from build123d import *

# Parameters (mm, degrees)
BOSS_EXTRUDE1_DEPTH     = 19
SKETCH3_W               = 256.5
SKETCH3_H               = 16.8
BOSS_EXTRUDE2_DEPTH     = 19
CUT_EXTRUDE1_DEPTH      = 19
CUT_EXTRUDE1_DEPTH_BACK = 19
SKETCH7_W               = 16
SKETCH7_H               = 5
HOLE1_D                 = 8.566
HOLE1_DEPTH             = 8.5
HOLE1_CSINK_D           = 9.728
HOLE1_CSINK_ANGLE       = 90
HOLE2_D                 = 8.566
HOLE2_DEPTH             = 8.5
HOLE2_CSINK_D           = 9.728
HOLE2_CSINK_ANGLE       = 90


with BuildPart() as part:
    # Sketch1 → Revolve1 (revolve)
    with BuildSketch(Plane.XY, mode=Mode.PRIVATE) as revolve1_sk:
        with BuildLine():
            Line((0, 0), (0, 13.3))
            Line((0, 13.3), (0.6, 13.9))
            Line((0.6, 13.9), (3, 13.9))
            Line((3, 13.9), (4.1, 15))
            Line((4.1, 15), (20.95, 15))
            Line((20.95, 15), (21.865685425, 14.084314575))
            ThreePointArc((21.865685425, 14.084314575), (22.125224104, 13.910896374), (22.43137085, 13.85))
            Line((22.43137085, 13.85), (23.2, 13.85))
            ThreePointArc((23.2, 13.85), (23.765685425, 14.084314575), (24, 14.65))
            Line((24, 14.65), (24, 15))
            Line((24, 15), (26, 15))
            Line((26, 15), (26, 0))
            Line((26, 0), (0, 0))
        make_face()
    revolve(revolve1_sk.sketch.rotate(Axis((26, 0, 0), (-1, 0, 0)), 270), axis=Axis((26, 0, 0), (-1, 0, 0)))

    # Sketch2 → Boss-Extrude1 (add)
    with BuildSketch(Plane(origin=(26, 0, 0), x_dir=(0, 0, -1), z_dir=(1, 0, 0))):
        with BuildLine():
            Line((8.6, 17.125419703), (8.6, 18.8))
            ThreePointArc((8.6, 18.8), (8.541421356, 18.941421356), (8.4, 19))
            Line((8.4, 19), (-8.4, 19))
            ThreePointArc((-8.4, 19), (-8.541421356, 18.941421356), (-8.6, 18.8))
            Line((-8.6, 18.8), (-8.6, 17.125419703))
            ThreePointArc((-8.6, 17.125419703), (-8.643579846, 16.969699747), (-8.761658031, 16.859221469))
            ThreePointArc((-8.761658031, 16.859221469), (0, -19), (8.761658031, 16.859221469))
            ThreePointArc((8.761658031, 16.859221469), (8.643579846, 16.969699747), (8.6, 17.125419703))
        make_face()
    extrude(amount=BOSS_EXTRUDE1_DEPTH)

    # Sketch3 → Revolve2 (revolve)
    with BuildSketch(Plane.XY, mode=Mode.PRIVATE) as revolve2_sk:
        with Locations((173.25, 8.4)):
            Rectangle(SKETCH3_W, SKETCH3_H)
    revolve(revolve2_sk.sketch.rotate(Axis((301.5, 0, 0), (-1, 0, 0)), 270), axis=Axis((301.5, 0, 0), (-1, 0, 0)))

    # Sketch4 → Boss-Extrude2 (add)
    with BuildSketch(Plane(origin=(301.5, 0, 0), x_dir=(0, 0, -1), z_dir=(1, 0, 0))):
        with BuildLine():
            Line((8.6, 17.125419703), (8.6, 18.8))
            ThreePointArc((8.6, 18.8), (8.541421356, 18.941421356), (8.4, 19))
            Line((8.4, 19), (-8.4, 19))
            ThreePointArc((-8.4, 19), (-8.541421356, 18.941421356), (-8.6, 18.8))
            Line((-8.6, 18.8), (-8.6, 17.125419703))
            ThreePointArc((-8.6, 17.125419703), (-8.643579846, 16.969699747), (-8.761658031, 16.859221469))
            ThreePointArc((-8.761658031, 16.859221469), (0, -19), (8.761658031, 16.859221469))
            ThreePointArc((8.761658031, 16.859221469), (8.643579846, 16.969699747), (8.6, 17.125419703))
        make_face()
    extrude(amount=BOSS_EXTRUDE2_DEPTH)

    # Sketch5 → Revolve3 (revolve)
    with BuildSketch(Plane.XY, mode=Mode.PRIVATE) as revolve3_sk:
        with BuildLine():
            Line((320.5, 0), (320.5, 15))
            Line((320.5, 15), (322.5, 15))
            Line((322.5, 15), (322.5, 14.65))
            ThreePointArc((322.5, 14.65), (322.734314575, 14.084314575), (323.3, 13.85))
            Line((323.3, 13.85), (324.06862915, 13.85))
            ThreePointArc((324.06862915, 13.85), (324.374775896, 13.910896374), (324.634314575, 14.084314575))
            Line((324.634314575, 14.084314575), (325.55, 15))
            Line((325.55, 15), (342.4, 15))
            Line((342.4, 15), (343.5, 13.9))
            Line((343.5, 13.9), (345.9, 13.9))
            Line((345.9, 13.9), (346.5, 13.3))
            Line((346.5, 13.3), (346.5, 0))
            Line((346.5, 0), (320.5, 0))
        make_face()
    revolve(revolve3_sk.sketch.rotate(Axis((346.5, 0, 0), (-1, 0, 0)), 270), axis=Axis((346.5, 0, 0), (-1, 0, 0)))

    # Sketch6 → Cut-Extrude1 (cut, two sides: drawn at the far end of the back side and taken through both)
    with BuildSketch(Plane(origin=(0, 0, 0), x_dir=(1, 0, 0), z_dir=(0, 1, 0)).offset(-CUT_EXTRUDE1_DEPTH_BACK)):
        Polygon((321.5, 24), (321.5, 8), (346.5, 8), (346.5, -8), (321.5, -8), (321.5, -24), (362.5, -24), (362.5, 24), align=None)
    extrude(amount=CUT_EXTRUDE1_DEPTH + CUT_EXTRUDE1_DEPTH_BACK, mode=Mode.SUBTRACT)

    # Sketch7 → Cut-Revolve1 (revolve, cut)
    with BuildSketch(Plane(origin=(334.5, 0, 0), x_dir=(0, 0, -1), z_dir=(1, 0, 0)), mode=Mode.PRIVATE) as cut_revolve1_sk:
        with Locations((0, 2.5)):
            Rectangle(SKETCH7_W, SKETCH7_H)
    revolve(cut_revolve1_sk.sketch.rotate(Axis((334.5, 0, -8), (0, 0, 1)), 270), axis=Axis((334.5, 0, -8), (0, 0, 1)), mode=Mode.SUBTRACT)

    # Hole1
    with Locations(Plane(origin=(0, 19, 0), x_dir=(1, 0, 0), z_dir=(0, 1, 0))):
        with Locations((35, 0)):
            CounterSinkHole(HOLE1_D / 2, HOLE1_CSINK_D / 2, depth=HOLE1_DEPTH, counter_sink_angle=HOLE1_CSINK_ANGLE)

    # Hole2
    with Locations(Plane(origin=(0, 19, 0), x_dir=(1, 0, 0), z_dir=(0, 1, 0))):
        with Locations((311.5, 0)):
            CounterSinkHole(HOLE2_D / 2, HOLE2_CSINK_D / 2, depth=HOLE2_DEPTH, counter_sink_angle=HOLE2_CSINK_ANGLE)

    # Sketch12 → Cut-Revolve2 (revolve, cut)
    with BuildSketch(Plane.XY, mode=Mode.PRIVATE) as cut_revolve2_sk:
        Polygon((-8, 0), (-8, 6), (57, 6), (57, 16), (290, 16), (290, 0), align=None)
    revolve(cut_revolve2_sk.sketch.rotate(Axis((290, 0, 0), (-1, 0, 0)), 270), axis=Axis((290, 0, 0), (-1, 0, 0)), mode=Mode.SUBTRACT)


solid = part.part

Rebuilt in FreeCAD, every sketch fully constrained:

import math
import FreeCAD as App
import Part
import Sketcher
from FreeCAD import Vector
Q = App.Units.Quantity

doc = App.newDocument("Part")
body = doc.addObject("PartDesign::Body", "Body")

# Sketch on XY plane
sketch1 = body.newObject("Sketcher::SketchObject", "Sketch")
sketch1.AttachmentSupport = (doc.getObject("XY_Plane"), [""])
sketch1.MapMode = "FlatFace"
sketch1.addGeometry(Part.LineSegment(Vector(0, 13.3, 0), Vector(0, 0, 0)), False)
sketch1.addGeometry(Part.LineSegment(Vector(0, 0, 0), Vector(26, 0, 0)), False)
sketch1.addGeometry(Part.LineSegment(Vector(26, 0, 0), Vector(26, 15, 0)), False)
sketch1.addGeometry(Part.LineSegment(Vector(26, 15, 0), Vector(24, 15, 0)), False)
sketch1.addGeometry(Part.LineSegment(Vector(24, 15, 0), Vector(24, 14.65, 0)), False)
sketch1.addGeometry(Part.ArcOfCircle(Part.Circle(Vector(23.2, 14.65, 0), Vector(0, 0, 1), 0.8), math.radians(-90), math.radians(0)), False)
sketch1.addGeometry(Part.LineSegment(Vector(23.2, 13.85, 0), Vector(22.43, 13.85, 0)), False)
sketch1.addGeometry(Part.ArcOfCircle(Part.Circle(Vector(22.43, 14.65, 0), Vector(0, 0, 1), 0.8), math.radians(-135), math.radians(-90)), False)
sketch1.addGeometry(Part.LineSegment(Vector(21.87, 14.08, 0), Vector(20.95, 15, 0)), False)
sketch1.addGeometry(Part.LineSegment(Vector(20.95, 15, 0), Vector(4.1, 15, 0)), False)
sketch1.addGeometry(Part.LineSegment(Vector(4.1, 15, 0), Vector(3, 13.9, 0)), False)
sketch1.addGeometry(Part.LineSegment(Vector(3, 13.9, 0), Vector(0.6, 13.9, 0)), False)
sketch1.addGeometry(Part.LineSegment(Vector(0.6, 13.9, 0), Vector(0, 13.3, 0)), False)
sketch1.addConstraint(Sketcher.Constraint("Coincident", 0, 2, 1, 1))
sketch1.addConstraint(Sketcher.Constraint("Coincident", 1, 2, 2, 1))
sketch1.addConstraint(Sketcher.Constraint("Coincident", 2, 2, 3, 1))
sketch1.addConstraint(Sketcher.Constraint("Coincident", 3, 2, 4, 1))
sketch1.addConstraint(Sketcher.Constraint("Tangent", 4, 2, 5, 2))
sketch1.addConstraint(Sketcher.Constraint("Tangent", 5, 1, 6, 1))
sketch1.addConstraint(Sketcher.Constraint("Tangent", 6, 2, 7, 2))
sketch1.addConstraint(Sketcher.Constraint("Tangent", 7, 1, 8, 1))
sketch1.addConstraint(Sketcher.Constraint("Coincident", 8, 2, 9, 1))
sketch1.addConstraint(Sketcher.Constraint("Coincident", 9, 2, 10, 1))
sketch1.addConstraint(Sketcher.Constraint("Coincident", 10, 2, 11, 1))
sketch1.addConstraint(Sketcher.Constraint("Coincident", 11, 2, 12, 1))
sketch1.addConstraint(Sketcher.Constraint("Coincident", 12, 2, 0, 1))
sketch1.addConstraint(Sketcher.Constraint("Vertical", 0))
sketch1.addConstraint(Sketcher.Constraint("Horizontal", 1))
sketch1.addConstraint(Sketcher.Constraint("Vertical", 2))
sketch1.addConstraint(Sketcher.Constraint("Horizontal", 3))
sketch1.addConstraint(Sketcher.Constraint("Vertical", 4))
sketch1.addConstraint(Sketcher.Constraint("Horizontal", 6))
sketch1.addConstraint(Sketcher.Constraint("Horizontal", 9))
sketch1.addConstraint(Sketcher.Constraint("Horizontal", 11))
sketch1.addConstraint(Sketcher.Constraint("Coincident", 0, 2, -1, 1))
sketch1.addConstraint(Sketcher.Constraint("Equal", 5, 7))
sketch1.addConstraint(Sketcher.Constraint("Perpendicular", 8, 10))
sketch1.addConstraint(Sketcher.Constraint("Parallel", 10, 12))
sketch1.addConstraint(Sketcher.Constraint("Horizontal", 3, 2, 8, 2))
sketch1.addConstraint(Sketcher.Constraint("Radius", 5, 0.8))
sketch1.addConstraint(Sketcher.Constraint("DistanceX", 1, 1, 1, 2, 26.0))
sketch1.addConstraint(Sketcher.Constraint("DistanceX", 3, 2, 3, 1, 2.0))
sketch1.addConstraint(Sketcher.Constraint("DistanceY", 2, 1, 2, 2, 15.0))
sketch1.addConstraint(Sketcher.Constraint("Angle", 8, Q("135 deg")))
sketch1.addConstraint(Sketcher.Constraint("DistanceX", 11, 2, 11, 1, 2.4))
sketch1.addConstraint(Sketcher.Constraint("DistanceY", 0, 2, 0, 1, 13.3))
sketch1.addConstraint(Sketcher.Constraint("DistanceX", -1, 1, 10, 2, 3.0))
sketch1.addConstraint(Sketcher.Constraint("DistanceX", 9, 2, 9, 1, 16.85))
sketch1.addConstraint(Sketcher.Constraint("DistanceY", 4, 2, 4, 1, 0.35))
revolution = body.newObject("PartDesign::Revolution", "Revolution")
revolution.Profile = sketch1
revolution.ReferenceAxis = (sketch1, ["H_Axis"])
revolution.Angle = 360

# Sketch on YZ plane
sketch2 = body.newObject("Sketcher::SketchObject", "Sketch001")
sketch2.AttachmentSupport = (doc.getObject("YZ_Plane"), [""])
sketch2.MapMode = "FlatFace"
sketch2.AttachmentOffset = App.Placement(Vector(0, 0, 26), App.Rotation())
sketch2.addGeometry(Part.LineSegment(Vector(17.13, -8.6, 0), Vector(18.8, -8.6, 0)), False)
sketch2.addGeometry(Part.ArcOfCircle(Part.Circle(Vector(18.8, -8.4, 0), Vector(0, 0, 1), 0.2), math.radians(-90), math.radians(0)), False)
sketch2.addGeometry(Part.LineSegment(Vector(19, -8.4, 0), Vector(19, 8.4, 0)), False)
sketch2.addGeometry(Part.ArcOfCircle(Part.Circle(Vector(18.8, 8.4, 0), Vector(0, 0, 1), 0.2), math.radians(0), math.radians(90)), False)
sketch2.addGeometry(Part.LineSegment(Vector(18.8, 8.6, 0), Vector(17.13, 8.6, 0)), False)
sketch2.addGeometry(Part.ArcOfCircle(Part.Circle(Vector(17.13, 8.9, 0), Vector(0, 0, 1), 0.3), math.radians(-153), math.radians(-90)), False)
sketch2.addGeometry(Part.ArcOfCircle(Part.Circle(Vector(0, 0, 0), Vector(0, 0, 1), 19), math.radians(27), math.radians(333)), False)
sketch2.addGeometry(Part.ArcOfCircle(Part.Circle(Vector(17.13, -8.9, 0), Vector(0, 0, 1), 0.3), math.radians(90), math.radians(153)), False)
sketch2.addConstraint(Sketcher.Constraint("Tangent", 0, 2, 1, 1))
sketch2.addConstraint(Sketcher.Constraint("Tangent", 1, 2, 2, 1))
sketch2.addConstraint(Sketcher.Constraint("Tangent", 2, 2, 3, 1))
sketch2.addConstraint(Sketcher.Constraint("Tangent", 3, 2, 4, 1))
sketch2.addConstraint(Sketcher.Constraint("Tangent", 4, 2, 5, 2))
sketch2.addConstraint(Sketcher.Constraint("Tangent", 5, 1, 6, 1))
sketch2.addConstraint(Sketcher.Constraint("Tangent", 6, 2, 7, 2))
sketch2.addConstraint(Sketcher.Constraint("Tangent", 7, 1, 0, 1))
sketch2.addConstraint(Sketcher.Constraint("Horizontal", 0))
sketch2.addConstraint(Sketcher.Constraint("Vertical", 2))
sketch2.addConstraint(Sketcher.Constraint("Horizontal", 4))
sketch2.addConstraint(Sketcher.Constraint("Coincident", 6, 3, -1, 1))
sketch2.addConstraint(Sketcher.Constraint("Equal", 1, 3))
sketch2.addConstraint(Sketcher.Constraint("Equal", 5, 7))
sketch2.addConstraint(Sketcher.Constraint("Vertical", 5, 3, 7, 3))
sketch2.addConstraint(Sketcher.Constraint("Radius", 6, 19.0))
sketch2.addConstraint(Sketcher.Constraint("Radius", 1, 0.2))
sketch2.addConstraint(Sketcher.Constraint("Radius", 5, 0.3))
sketch2.addConstraint(Sketcher.Constraint("DistanceY", 2, 1, 2, 2, 16.8))
sketch2.addConstraint(Sketcher.Constraint("DistanceX", -1, 1, 1, 2, 19.0))
pad1 = body.newObject("PartDesign::Pad", "Pad")
pad1.Profile = sketch2
pad1.Length = 19

# Sketch on XY plane
sketch3 = body.newObject("Sketcher::SketchObject", "Sketch002")
sketch3.AttachmentSupport = (doc.getObject("XY_Plane"), [""])
sketch3.MapMode = "FlatFace"
sketch3.addGeometry(Part.LineSegment(Vector(45, 17, 0), Vector(45, 0, 0)), False)
sketch3.addGeometry(Part.LineSegment(Vector(45, 0, 0), Vector(302, 0, 0)), False)
sketch3.addGeometry(Part.LineSegment(Vector(302, 0, 0), Vector(302, 17, 0)), False)
sketch3.addGeometry(Part.LineSegment(Vector(302, 17, 0), Vector(45, 17, 0)), False)
sketch3.addConstraint(Sketcher.Constraint("Coincident", 0, 2, 1, 1))
sketch3.addConstraint(Sketcher.Constraint("Coincident", 1, 2, 2, 1))
sketch3.addConstraint(Sketcher.Constraint("Coincident", 2, 2, 3, 1))
sketch3.addConstraint(Sketcher.Constraint("Coincident", 3, 2, 0, 1))
sketch3.addConstraint(Sketcher.Constraint("Vertical", 0))
sketch3.addConstraint(Sketcher.Constraint("Horizontal", 1))
sketch3.addConstraint(Sketcher.Constraint("Vertical", 2))
sketch3.addConstraint(Sketcher.Constraint("Horizontal", 3))
sketch3.addConstraint(Sketcher.Constraint("PointOnObject", 0, 2, -1))
sketch3.addConstraint(Sketcher.Constraint("DistanceX", 1, 1, 1, 2, 256.5))
sketch3.addConstraint(Sketcher.Constraint("DistanceY", 0, 2, 0, 1, 16.8))
sketch3.addConstraint(Sketcher.Constraint("DistanceX", -1, 1, 0, 2, 45.0))
revolution2 = body.newObject("PartDesign::Revolution", "Revolution001")
revolution2.Profile = sketch3
revolution2.ReferenceAxis = (sketch3, ["H_Axis"])
revolution2.Angle = 360

# Sketch on YZ plane
sketch4 = body.newObject("Sketcher::SketchObject", "Sketch003")
sketch4.AttachmentSupport = (doc.getObject("YZ_Plane"), [""])
sketch4.MapMode = "FlatFace"
sketch4.AttachmentOffset = App.Placement(Vector(0, 0, 301.5), App.Rotation())
sketch4.addGeometry(Part.LineSegment(Vector(17.13, -8.6, 0), Vector(18.8, -8.6, 0)), False)
sketch4.addGeometry(Part.ArcOfCircle(Part.Circle(Vector(18.8, -8.4, 0), Vector(0, 0, 1), 0.2), math.radians(-90), math.radians(0)), False)
sketch4.addGeometry(Part.LineSegment(Vector(19, -8.4, 0), Vector(19, 8.4, 0)), False)
sketch4.addGeometry(Part.ArcOfCircle(Part.Circle(Vector(18.8, 8.4, 0), Vector(0, 0, 1), 0.2), math.radians(0), math.radians(90)), False)
sketch4.addGeometry(Part.LineSegment(Vector(18.8, 8.6, 0), Vector(17.13, 8.6, 0)), False)
sketch4.addGeometry(Part.ArcOfCircle(Part.Circle(Vector(17.13, 8.9, 0), Vector(0, 0, 1), 0.3), math.radians(-153), math.radians(-90)), False)
sketch4.addGeometry(Part.ArcOfCircle(Part.Circle(Vector(0, 0, 0), Vector(0, 0, 1), 19), math.radians(27), math.radians(333)), False)
sketch4.addGeometry(Part.ArcOfCircle(Part.Circle(Vector(17.13, -8.9, 0), Vector(0, 0, 1), 0.3), math.radians(90), math.radians(153)), False)
sketch4.addConstraint(Sketcher.Constraint("Tangent", 0, 2, 1, 1))
sketch4.addConstraint(Sketcher.Constraint("Tangent", 1, 2, 2, 1))
sketch4.addConstraint(Sketcher.Constraint("Tangent", 2, 2, 3, 1))
sketch4.addConstraint(Sketcher.Constraint("Tangent", 3, 2, 4, 1))
sketch4.addConstraint(Sketcher.Constraint("Tangent", 4, 2, 5, 2))
sketch4.addConstraint(Sketcher.Constraint("Tangent", 5, 1, 6, 1))
sketch4.addConstraint(Sketcher.Constraint("Tangent", 6, 2, 7, 2))
sketch4.addConstraint(Sketcher.Constraint("Tangent", 7, 1, 0, 1))
sketch4.addConstraint(Sketcher.Constraint("Horizontal", 0))
sketch4.addConstraint(Sketcher.Constraint("Vertical", 2))
sketch4.addConstraint(Sketcher.Constraint("Horizontal", 4))
sketch4.addConstraint(Sketcher.Constraint("Coincident", 6, 3, -1, 1))
sketch4.addConstraint(Sketcher.Constraint("Equal", 1, 3))
sketch4.addConstraint(Sketcher.Constraint("Equal", 5, 7))
sketch4.addConstraint(Sketcher.Constraint("Vertical", 5, 3, 7, 3))
sketch4.addConstraint(Sketcher.Constraint("Radius", 6, 19.0))
sketch4.addConstraint(Sketcher.Constraint("Radius", 1, 0.2))
sketch4.addConstraint(Sketcher.Constraint("Radius", 5, 0.3))
sketch4.addConstraint(Sketcher.Constraint("DistanceY", 2, 1, 2, 2, 16.8))
sketch4.addConstraint(Sketcher.Constraint("DistanceX", -1, 1, 1, 2, 19.0))
pad2 = body.newObject("PartDesign::Pad", "Pad001")
pad2.Profile = sketch4
pad2.Length = 19

# Sketch on XY plane
sketch5 = body.newObject("Sketcher::SketchObject", "Sketch004")
sketch5.AttachmentSupport = (doc.getObject("XY_Plane"), [""])
sketch5.MapMode = "FlatFace"
sketch5.addGeometry(Part.LineSegment(Vector(320.5, 15, 0), Vector(320.5, 0, 0)), False)
sketch5.addGeometry(Part.LineSegment(Vector(320.5, 0, 0), Vector(346.5, 0, 0)), False)
sketch5.addGeometry(Part.LineSegment(Vector(346.5, 0, 0), Vector(346.5, 13.3, 0)), False)
sketch5.addGeometry(Part.LineSegment(Vector(346.5, 13.3, 0), Vector(345.9, 13.9, 0)), False)
sketch5.addGeometry(Part.LineSegment(Vector(345.9, 13.9, 0), Vector(343.5, 13.9, 0)), False)
sketch5.addGeometry(Part.LineSegment(Vector(343.5, 13.9, 0), Vector(342.4, 15, 0)), False)
sketch5.addGeometry(Part.LineSegment(Vector(342.4, 15, 0), Vector(325.55, 15, 0)), False)
sketch5.addGeometry(Part.LineSegment(Vector(325.55, 15, 0), Vector(324.63, 14.08, 0)), False)
sketch5.addGeometry(Part.ArcOfCircle(Part.Circle(Vector(324.07, 14.65, 0), Vector(0, 0, 1), 0.8), math.radians(-90), math.radians(-45)), False)
sketch5.addGeometry(Part.LineSegment(Vector(324.07, 13.85, 0), Vector(323.3, 13.85, 0)), False)
sketch5.addGeometry(Part.ArcOfCircle(Part.Circle(Vector(323.3, 14.65, 0), Vector(0, 0, 1), 0.8), math.radians(180), math.radians(270)), False)
sketch5.addGeometry(Part.LineSegment(Vector(322.5, 14.65, 0), Vector(322.5, 15, 0)), False)
sketch5.addGeometry(Part.LineSegment(Vector(322.5, 15, 0), Vector(320.5, 15, 0)), False)
sketch5.addConstraint(Sketcher.Constraint("Coincident", 0, 2, 1, 1))
sketch5.addConstraint(Sketcher.Constraint("Coincident", 1, 2, 2, 1))
sketch5.addConstraint(Sketcher.Constraint("Coincident", 2, 2, 3, 1))
sketch5.addConstraint(Sketcher.Constraint("Coincident", 3, 2, 4, 1))
sketch5.addConstraint(Sketcher.Constraint("Coincident", 4, 2, 5, 1))
sketch5.addConstraint(Sketcher.Constraint("Coincident", 5, 2, 6, 1))
sketch5.addConstraint(Sketcher.Constraint("Coincident", 6, 2, 7, 1))
sketch5.addConstraint(Sketcher.Constraint("Tangent", 7, 2, 8, 2))
sketch5.addConstraint(Sketcher.Constraint("Tangent", 8, 1, 9, 1))
sketch5.addConstraint(Sketcher.Constraint("Tangent", 9, 2, 10, 2))
sketch5.addConstraint(Sketcher.Constraint("Tangent", 10, 1, 11, 1))
sketch5.addConstraint(Sketcher.Constraint("Coincident", 11, 2, 12, 1))
sketch5.addConstraint(Sketcher.Constraint("Coincident", 12, 2, 0, 1))
sketch5.addConstraint(Sketcher.Constraint("Vertical", 0))
sketch5.addConstraint(Sketcher.Constraint("Horizontal", 1))
sketch5.addConstraint(Sketcher.Constraint("Vertical", 2))
sketch5.addConstraint(Sketcher.Constraint("Horizontal", 4))
sketch5.addConstraint(Sketcher.Constraint("Horizontal", 6))
sketch5.addConstraint(Sketcher.Constraint("Horizontal", 9))
sketch5.addConstraint(Sketcher.Constraint("Vertical", 11))
sketch5.addConstraint(Sketcher.Constraint("Horizontal", 12))
sketch5.addConstraint(Sketcher.Constraint("Equal", 8, 10))
sketch5.addConstraint(Sketcher.Constraint("PointOnObject", 0, 2, -1))
sketch5.addConstraint(Sketcher.Constraint("Parallel", 3, 5))
sketch5.addConstraint(Sketcher.Constraint("Perpendicular", 5, 7))
sketch5.addConstraint(Sketcher.Constraint("Horizontal", 6, 2, 11, 2))
sketch5.addConstraint(Sketcher.Constraint("Radius", 8, 0.8))
sketch5.addConstraint(Sketcher.Constraint("DistanceX", 1, 1, 1, 2, 26.0))
sketch5.addConstraint(Sketcher.Constraint("DistanceX", 12, 2, 12, 1, 2.0))
sketch5.addConstraint(Sketcher.Constraint("DistanceY", 0, 2, 0, 1, 15.0))
sketch5.addConstraint(Sketcher.Constraint("Angle", 3, Q("135 deg")))
sketch5.addConstraint(Sketcher.Constraint("DistanceX", 4, 2, 4, 1, 2.4))
sketch5.addConstraint(Sketcher.Constraint("DistanceY", 2, 1, 2, 2, 13.3))
sketch5.addConstraint(Sketcher.Constraint("DistanceX", 4, 2, 2, 2, 3.0))
sketch5.addConstraint(Sketcher.Constraint("DistanceX", 6, 2, 6, 1, 16.85))
sketch5.addConstraint(Sketcher.Constraint("DistanceY", 11, 1, 11, 2, 0.35))
sketch5.addConstraint(Sketcher.Constraint("DistanceX", -1, 1, 10, 3, 323.3))
revolution3 = body.newObject("PartDesign::Revolution", "Revolution002")
revolution3.Profile = sketch5
revolution3.ReferenceAxis = (sketch5, ["H_Axis"])
revolution3.Angle = 360

# Sketch on XZ plane
sketch6 = body.newObject("Sketcher::SketchObject", "Sketch005")
sketch6.AttachmentSupport = (doc.getObject("XZ_Plane"), [""])
sketch6.MapMode = "FlatFace"
sketch6.addGeometry(Part.LineSegment(Vector(322, -24, 0), Vector(322, -8, 0)), False)
sketch6.addGeometry(Part.LineSegment(Vector(322, -8, 0), Vector(346, -8, 0)), False)
sketch6.addGeometry(Part.LineSegment(Vector(346, -8, 0), Vector(346, 8, 0)), False)
sketch6.addGeometry(Part.LineSegment(Vector(346, 8, 0), Vector(322, 8, 0)), False)
sketch6.addGeometry(Part.LineSegment(Vector(322, 8, 0), Vector(322, 24, 0)), False)
sketch6.addGeometry(Part.LineSegment(Vector(322, 24, 0), Vector(362, 24, 0)), False)
sketch6.addGeometry(Part.LineSegment(Vector(362, 24, 0), Vector(362, -24, 0)), False)
sketch6.addGeometry(Part.LineSegment(Vector(362, -24, 0), Vector(322, -24, 0)), False)
sketch6.addConstraint(Sketcher.Constraint("Coincident", 0, 2, 1, 1))
sketch6.addConstraint(Sketcher.Constraint("Coincident", 1, 2, 2, 1))
sketch6.addConstraint(Sketcher.Constraint("Coincident", 2, 2, 3, 1))
sketch6.addConstraint(Sketcher.Constraint("Coincident", 3, 2, 4, 1))
sketch6.addConstraint(Sketcher.Constraint("Coincident", 4, 2, 5, 1))
sketch6.addConstraint(Sketcher.Constraint("Coincident", 5, 2, 6, 1))
sketch6.addConstraint(Sketcher.Constraint("Coincident", 6, 2, 7, 1))
sketch6.addConstraint(Sketcher.Constraint("Coincident", 7, 2, 0, 1))
sketch6.addConstraint(Sketcher.Constraint("Vertical", 0))
sketch6.addConstraint(Sketcher.Constraint("Horizontal", 1))
sketch6.addConstraint(Sketcher.Constraint("Vertical", 2))
sketch6.addConstraint(Sketcher.Constraint("Horizontal", 3))
sketch6.addConstraint(Sketcher.Constraint("Vertical", 4))
sketch6.addConstraint(Sketcher.Constraint("Horizontal", 5))
sketch6.addConstraint(Sketcher.Constraint("Vertical", 6))
sketch6.addConstraint(Sketcher.Constraint("Horizontal", 7))
sketch6.addConstraint(Sketcher.Constraint("Symmetric", 0, 2, 3, 2, -1))
sketch6.addConstraint(Sketcher.Constraint("Equal", 0, 2))
sketch6.addConstraint(Sketcher.Constraint("Equal", 2, 4))
sketch6.addConstraint(Sketcher.Constraint("DistanceX", 1, 1, 1, 2, 25.0))
sketch6.addConstraint(Sketcher.Constraint("DistanceX", 5, 1, 5, 2, 41.0))
sketch6.addConstraint(Sketcher.Constraint("DistanceY", 0, 1, 0, 2, 16.0))
sketch6.addConstraint(Sketcher.Constraint("DistanceX", -1, 1, 0, 2, 321.5))
pocket1 = body.newObject("PartDesign::Pocket", "Pocket")
pocket1.Profile = sketch6
pocket1.Type = "ThroughAll"
pocket1.Midplane = True

# Sketch on YZ plane
sketch7 = body.newObject("Sketcher::SketchObject", "Sketch006")
sketch7.AttachmentSupport = (doc.getObject("YZ_Plane"), [""])
sketch7.MapMode = "FlatFace"
sketch7.AttachmentOffset = App.Placement(Vector(0, 0, 334.5), App.Rotation())
sketch7.addGeometry(Part.LineSegment(Vector(5, 8, 0), Vector(0, 8, 0)), False)
sketch7.addGeometry(Part.LineSegment(Vector(0, 8, 0), Vector(0, -8, 0)), False)
sketch7.addGeometry(Part.LineSegment(Vector(0, -8, 0), Vector(5, -8, 0)), False)
sketch7.addGeometry(Part.LineSegment(Vector(5, -8, 0), Vector(5, 8, 0)), False)
sketch7.addConstraint(Sketcher.Constraint("Coincident", 0, 2, 1, 1))
sketch7.addConstraint(Sketcher.Constraint("Coincident", 1, 2, 2, 1))
sketch7.addConstraint(Sketcher.Constraint("Coincident", 2, 2, 3, 1))
sketch7.addConstraint(Sketcher.Constraint("Coincident", 3, 2, 0, 1))
sketch7.addConstraint(Sketcher.Constraint("Horizontal", 0))
sketch7.addConstraint(Sketcher.Constraint("Vertical", 1))
sketch7.addConstraint(Sketcher.Constraint("Horizontal", 2))
sketch7.addConstraint(Sketcher.Constraint("Vertical", 3))
sketch7.addConstraint(Sketcher.Constraint("Symmetric", 0, 2, 1, 2, -1, 1))
sketch7.addConstraint(Sketcher.Constraint("DistanceX", 0, 2, 0, 1, 5.0))
sketch7.addConstraint(Sketcher.Constraint("DistanceY", 1, 2, 1, 1, 16.0))
groove = body.newObject("PartDesign::Groove", "Groove")
groove.Profile = sketch7
groove.ReferenceAxis = (sketch7, ["V_Axis"])
groove.Angle = 360

# Sketch on XZ plane
sketch8 = body.newObject("Sketcher::SketchObject", "Sketch007")
sketch8.AttachmentSupport = (doc.getObject("XZ_Plane"), [""])
sketch8.MapMode = "FlatFace"
sketch8.AttachmentOffset = App.Placement(Vector(0, 0, -19), App.Rotation())
sketch8.addGeometry(Part.Circle(Vector(35, 0, 0), Vector(0, 0, 1), 4.3), False)
sketch8.addConstraint(Sketcher.Constraint("PointOnObject", 0, 3, -1))
sketch8.addConstraint(Sketcher.Constraint("Diameter", 0, 8.566))
sketch8.addConstraint(Sketcher.Constraint("DistanceX", -1, 1, 0, 3, 35.0))
doc.recompute()
hole = body.newObject("PartDesign::Hole", "Hole")
hole.Profile = sketch8
hole.ThreadType = "None"
hole.Diameter = 8.566
hole.DepthType = "Dimension"
hole.Depth = 8.5
hole.DrillPoint = "Flat"
hole.HoleCutType = "Countersink"
hole.HoleCutDiameter = 9.728
hole.HoleCutCountersinkAngle = 90
hole.Reversed = True

# Sketch on XZ plane
sketch9 = body.newObject("Sketcher::SketchObject", "Sketch008")
sketch9.AttachmentSupport = (doc.getObject("XZ_Plane"), [""])
sketch9.MapMode = "FlatFace"
sketch9.AttachmentOffset = App.Placement(Vector(0, 0, -19), App.Rotation())
sketch9.addGeometry(Part.Circle(Vector(311.5, 0, 0), Vector(0, 0, 1), 4.3), False)
sketch9.addConstraint(Sketcher.Constraint("PointOnObject", 0, 3, -1))
sketch9.addConstraint(Sketcher.Constraint("Diameter", 0, 8.566))
sketch9.addConstraint(Sketcher.Constraint("DistanceX", -1, 1, 0, 3, 311.5))
doc.recompute()
hole2 = body.newObject("PartDesign::Hole", "Hole001")
hole2.Profile = sketch9
hole2.ThreadType = "None"
hole2.Diameter = 8.566
hole2.DepthType = "Dimension"
hole2.Depth = 8.5
hole2.DrillPoint = "Flat"
hole2.HoleCutType = "Countersink"
hole2.HoleCutDiameter = 9.728
hole2.HoleCutCountersinkAngle = 90
hole2.Reversed = True

# Sketch on XY plane
sketch10 = body.newObject("Sketcher::SketchObject", "Sketch009")
sketch10.AttachmentSupport = (doc.getObject("XY_Plane"), [""])
sketch10.MapMode = "FlatFace"
sketch10.addGeometry(Part.LineSegment(Vector(-8, 6, 0), Vector(-8, 0, 0)), False)
sketch10.addGeometry(Part.LineSegment(Vector(-8, 0, 0), Vector(290, 0, 0)), False)
sketch10.addGeometry(Part.LineSegment(Vector(290, 0, 0), Vector(290, 16, 0)), False)
sketch10.addGeometry(Part.LineSegment(Vector(290, 16, 0), Vector(57, 16, 0)), False)
sketch10.addGeometry(Part.LineSegment(Vector(57, 16, 0), Vector(57, 6, 0)), False)
sketch10.addGeometry(Part.LineSegment(Vector(57, 6, 0), Vector(-8, 6, 0)), False)
sketch10.addConstraint(Sketcher.Constraint("Coincident", 0, 2, 1, 1))
sketch10.addConstraint(Sketcher.Constraint("Coincident", 1, 2, 2, 1))
sketch10.addConstraint(Sketcher.Constraint("Coincident", 2, 2, 3, 1))
sketch10.addConstraint(Sketcher.Constraint("Coincident", 3, 2, 4, 1))
sketch10.addConstraint(Sketcher.Constraint("Coincident", 4, 2, 5, 1))
sketch10.addConstraint(Sketcher.Constraint("Coincident", 5, 2, 0, 1))
sketch10.addConstraint(Sketcher.Constraint("Vertical", 0))
sketch10.addConstraint(Sketcher.Constraint("Horizontal", 1))
sketch10.addConstraint(Sketcher.Constraint("Vertical", 2))
sketch10.addConstraint(Sketcher.Constraint("Horizontal", 3))
sketch10.addConstraint(Sketcher.Constraint("Vertical", 4))
sketch10.addConstraint(Sketcher.Constraint("Horizontal", 5))
sketch10.addConstraint(Sketcher.Constraint("PointOnObject", 0, 2, -1))
sketch10.addConstraint(Sketcher.Constraint("DistanceX", 1, 1, 1, 2, 298.0))
sketch10.addConstraint(Sketcher.Constraint("DistanceX", 3, 2, 3, 1, 233.0))
sketch10.addConstraint(Sketcher.Constraint("DistanceY", 0, 2, 0, 1, 6.0))
sketch10.addConstraint(Sketcher.Constraint("DistanceY", 2, 1, 2, 2, 16.0))
sketch10.addConstraint(Sketcher.Constraint("DistanceX", 0, 2, -1, 1, 8.0))
groove2 = body.newObject("PartDesign::Groove", "Groove001")
groove2.Profile = sketch10
groove2.ReferenceAxis = (sketch10, ["H_Axis"])
groove2.Angle = 360

doc.recompute()
